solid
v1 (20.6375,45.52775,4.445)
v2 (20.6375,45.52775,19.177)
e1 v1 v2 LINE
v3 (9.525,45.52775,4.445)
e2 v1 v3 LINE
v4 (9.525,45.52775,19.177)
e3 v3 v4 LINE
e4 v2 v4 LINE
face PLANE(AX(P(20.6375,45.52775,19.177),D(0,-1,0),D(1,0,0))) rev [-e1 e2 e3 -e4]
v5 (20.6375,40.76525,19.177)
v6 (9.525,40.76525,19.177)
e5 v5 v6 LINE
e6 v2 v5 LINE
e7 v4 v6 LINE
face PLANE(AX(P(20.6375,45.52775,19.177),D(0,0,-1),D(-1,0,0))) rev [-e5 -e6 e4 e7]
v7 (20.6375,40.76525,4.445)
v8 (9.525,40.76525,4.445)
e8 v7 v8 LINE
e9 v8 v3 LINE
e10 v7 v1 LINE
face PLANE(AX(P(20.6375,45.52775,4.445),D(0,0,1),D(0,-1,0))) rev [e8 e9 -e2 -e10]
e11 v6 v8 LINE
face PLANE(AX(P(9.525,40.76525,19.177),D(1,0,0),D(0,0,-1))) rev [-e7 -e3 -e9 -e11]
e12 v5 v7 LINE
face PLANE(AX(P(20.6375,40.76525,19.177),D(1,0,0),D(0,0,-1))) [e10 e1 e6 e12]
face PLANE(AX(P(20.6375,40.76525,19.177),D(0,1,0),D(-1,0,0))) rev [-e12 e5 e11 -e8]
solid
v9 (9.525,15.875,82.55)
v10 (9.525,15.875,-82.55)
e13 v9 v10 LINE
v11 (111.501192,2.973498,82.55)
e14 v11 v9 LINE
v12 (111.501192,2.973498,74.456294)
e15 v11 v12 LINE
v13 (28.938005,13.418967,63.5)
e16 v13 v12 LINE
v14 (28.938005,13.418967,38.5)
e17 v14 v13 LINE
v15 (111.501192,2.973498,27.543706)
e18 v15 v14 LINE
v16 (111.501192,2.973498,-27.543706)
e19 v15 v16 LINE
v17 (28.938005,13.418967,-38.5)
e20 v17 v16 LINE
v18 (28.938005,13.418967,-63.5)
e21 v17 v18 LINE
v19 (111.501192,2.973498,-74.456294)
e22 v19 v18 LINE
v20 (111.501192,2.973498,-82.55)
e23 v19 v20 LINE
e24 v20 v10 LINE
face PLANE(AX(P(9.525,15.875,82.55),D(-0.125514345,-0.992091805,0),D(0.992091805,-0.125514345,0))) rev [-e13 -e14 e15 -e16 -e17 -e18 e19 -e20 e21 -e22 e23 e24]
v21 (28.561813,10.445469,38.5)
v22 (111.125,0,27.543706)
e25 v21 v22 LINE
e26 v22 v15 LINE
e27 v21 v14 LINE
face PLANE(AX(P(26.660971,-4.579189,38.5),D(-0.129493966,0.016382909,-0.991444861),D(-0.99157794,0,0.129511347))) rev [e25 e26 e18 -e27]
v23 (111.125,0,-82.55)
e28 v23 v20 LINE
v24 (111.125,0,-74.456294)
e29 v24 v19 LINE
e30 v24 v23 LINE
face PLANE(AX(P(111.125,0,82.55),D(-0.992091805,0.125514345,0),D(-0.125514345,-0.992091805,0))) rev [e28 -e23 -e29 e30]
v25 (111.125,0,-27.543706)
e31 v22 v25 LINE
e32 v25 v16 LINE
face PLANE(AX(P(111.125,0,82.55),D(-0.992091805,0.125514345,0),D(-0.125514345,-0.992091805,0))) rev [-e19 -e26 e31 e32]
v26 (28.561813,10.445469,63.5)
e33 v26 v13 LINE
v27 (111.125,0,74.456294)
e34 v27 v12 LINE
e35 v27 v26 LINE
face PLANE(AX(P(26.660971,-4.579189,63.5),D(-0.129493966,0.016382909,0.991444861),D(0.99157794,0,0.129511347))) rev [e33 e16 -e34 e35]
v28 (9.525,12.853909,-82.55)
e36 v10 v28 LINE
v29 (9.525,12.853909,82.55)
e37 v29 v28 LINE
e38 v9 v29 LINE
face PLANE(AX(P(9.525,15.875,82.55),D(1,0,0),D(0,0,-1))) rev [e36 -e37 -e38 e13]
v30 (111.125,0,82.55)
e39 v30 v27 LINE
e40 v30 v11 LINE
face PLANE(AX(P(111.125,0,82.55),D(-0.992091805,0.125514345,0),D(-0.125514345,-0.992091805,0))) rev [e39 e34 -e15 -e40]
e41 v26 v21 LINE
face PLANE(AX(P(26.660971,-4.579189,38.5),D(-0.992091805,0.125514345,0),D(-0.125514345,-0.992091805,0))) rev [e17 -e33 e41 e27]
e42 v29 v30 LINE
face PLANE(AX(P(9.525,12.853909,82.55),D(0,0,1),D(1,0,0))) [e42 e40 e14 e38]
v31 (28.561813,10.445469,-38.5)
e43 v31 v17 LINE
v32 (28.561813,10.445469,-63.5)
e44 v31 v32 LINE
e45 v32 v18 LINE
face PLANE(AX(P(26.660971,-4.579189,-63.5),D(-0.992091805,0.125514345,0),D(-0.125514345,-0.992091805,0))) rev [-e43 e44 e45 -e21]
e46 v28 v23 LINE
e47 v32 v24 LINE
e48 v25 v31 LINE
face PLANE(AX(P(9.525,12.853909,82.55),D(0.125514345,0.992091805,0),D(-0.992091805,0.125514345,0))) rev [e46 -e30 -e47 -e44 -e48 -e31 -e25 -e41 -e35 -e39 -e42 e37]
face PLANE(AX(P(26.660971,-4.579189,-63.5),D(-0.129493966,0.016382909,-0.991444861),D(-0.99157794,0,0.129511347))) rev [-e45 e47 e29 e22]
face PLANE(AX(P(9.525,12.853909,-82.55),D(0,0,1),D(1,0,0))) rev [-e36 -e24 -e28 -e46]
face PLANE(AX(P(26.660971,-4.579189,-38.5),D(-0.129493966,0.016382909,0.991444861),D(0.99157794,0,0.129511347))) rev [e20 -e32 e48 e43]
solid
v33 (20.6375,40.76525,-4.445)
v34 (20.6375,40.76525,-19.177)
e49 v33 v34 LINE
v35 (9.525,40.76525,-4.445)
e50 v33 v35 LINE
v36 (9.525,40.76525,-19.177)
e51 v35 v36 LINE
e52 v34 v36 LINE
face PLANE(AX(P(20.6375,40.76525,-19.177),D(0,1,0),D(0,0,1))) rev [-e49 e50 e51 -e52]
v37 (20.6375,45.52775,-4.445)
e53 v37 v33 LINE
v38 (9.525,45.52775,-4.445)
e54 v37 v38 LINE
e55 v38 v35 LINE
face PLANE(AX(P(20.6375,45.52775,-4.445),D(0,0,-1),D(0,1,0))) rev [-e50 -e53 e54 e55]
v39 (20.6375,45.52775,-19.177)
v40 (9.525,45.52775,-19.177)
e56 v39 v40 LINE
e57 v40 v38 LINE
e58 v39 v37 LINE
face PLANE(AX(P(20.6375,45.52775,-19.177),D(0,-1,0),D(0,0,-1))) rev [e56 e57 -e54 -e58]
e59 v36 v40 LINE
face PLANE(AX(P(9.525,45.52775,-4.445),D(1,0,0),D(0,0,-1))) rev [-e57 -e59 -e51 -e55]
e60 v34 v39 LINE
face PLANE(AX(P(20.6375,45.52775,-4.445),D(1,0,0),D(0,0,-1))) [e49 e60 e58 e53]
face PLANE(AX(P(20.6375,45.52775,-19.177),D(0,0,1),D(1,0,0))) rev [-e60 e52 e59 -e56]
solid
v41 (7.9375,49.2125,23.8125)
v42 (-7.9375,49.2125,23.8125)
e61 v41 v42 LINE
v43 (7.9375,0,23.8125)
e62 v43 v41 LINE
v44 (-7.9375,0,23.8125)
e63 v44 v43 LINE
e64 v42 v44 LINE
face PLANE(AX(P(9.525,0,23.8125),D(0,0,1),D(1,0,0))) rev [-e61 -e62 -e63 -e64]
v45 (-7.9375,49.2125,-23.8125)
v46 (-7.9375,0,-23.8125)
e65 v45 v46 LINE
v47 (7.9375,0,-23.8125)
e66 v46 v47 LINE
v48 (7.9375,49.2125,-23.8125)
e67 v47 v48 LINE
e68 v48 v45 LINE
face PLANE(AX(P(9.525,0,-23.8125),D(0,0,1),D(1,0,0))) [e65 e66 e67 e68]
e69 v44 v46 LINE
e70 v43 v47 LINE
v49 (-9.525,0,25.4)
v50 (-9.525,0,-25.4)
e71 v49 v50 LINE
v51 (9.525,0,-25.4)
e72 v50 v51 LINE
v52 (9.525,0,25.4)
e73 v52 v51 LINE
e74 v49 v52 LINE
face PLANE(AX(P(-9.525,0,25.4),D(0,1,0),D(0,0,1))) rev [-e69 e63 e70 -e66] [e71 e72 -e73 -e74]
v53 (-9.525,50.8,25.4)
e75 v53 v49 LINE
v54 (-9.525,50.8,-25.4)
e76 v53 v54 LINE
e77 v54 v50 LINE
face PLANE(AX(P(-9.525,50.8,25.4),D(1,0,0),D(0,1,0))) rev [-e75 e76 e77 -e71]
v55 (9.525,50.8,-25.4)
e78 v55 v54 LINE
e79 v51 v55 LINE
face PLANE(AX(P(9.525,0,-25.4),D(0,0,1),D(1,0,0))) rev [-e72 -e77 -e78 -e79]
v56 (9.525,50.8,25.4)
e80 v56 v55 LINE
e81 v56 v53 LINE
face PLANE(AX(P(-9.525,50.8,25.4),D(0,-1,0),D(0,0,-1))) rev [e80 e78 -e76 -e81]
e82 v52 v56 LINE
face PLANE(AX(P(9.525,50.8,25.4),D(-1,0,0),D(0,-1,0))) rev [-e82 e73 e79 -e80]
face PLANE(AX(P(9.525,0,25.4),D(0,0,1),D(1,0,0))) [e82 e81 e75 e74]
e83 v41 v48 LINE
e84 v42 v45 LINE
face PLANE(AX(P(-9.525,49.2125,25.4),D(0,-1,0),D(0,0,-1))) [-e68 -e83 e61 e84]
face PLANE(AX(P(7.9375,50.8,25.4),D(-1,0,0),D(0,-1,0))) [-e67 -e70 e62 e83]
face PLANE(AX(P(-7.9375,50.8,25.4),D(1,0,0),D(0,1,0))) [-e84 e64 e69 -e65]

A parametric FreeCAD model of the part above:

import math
import FreeCAD as App
import Part
import Sketcher

V = App.Vector
Q = App.Units.Quantity


def faces_at(feature, points):
    """Names of the faces that lie closest to the given points."""
    faces = feature.Shape.Faces
    near = lambda p: min(range(len(faces)), key=lambda i: faces[i].distToShape(Part.Vertex(*p))[0])
    return sorted({f"Face{near(p) + 1}" for p in points})


def add_polygon(sketch, points):
    """Adds a closed chain of lines whose ends are joined by coincident constraints."""
    first, n = sketch.GeometryCount, len(points)
    for a, b in zip(points, points[1:] + points[:1]):
        sketch.addGeometry(Part.LineSegment(App.Vector(*a, 0), App.Vector(*b, 0)), False)
    for i in range(n):
        sketch.addConstraint(Sketcher.Constraint("Coincident", first + i, 2, first + (i + 1) % n, 1))

doc = App.newDocument("Part")
body = doc.addObject("PartDesign::Body", "Body")

sketch1 = body.newObject("Sketcher::SketchObject", "Sketch")
sketch1.AttachmentSupport = (doc.getObject("XY_Plane"), [""])
sketch1.MapMode = "FlatFace"
add_polygon(sketch1, [(-10, 51), (-10, 0), (10, 0), (10, 51)])
sketch1.addConstraint(Sketcher.Constraint("Vertical", 0))
sketch1.addConstraint(Sketcher.Constraint("Horizontal", 1))
sketch1.addConstraint(Sketcher.Constraint("Vertical", 2))
sketch1.addConstraint(Sketcher.Constraint("Horizontal", 3))
sketch1.addConstraint(Sketcher.Constraint("Symmetric", 0, 2, 1, 2, -1, 1))
sketch1.addConstraint(Sketcher.Constraint("DistanceY", 0, 2, 0, 1, Q("2 in")))
sketch1.addConstraint(Sketcher.Constraint("DistanceX", 1, 1, 1, 2, Q("0.75 in")))
pad1 = body.newObject("PartDesign::Pad", "Pad")
pad1.Profile = sketch1
pad1.Length = Q("2 in")
pad1.Midplane = True
doc.recompute()

thickness = body.newObject("PartDesign::Thickness", "Thickness")
thickness.Base = (pad1, faces_at(pad1, [(0, 0, 0)]))
thickness.Value = Q("0.0625 in")
thickness.Reversed = True
thickness.Join = "Intersection"
body2 = doc.addObject("PartDesign::Body", "Body001")

sketch2 = body2.newObject("Sketcher::SketchObject", "Sketch001")
sketch2.AttachmentSupport = (doc.getObject("XY_Plane001"), [""])
sketch2.MapMode = "FlatFace"
add_polygon(sketch2, [(111.5, 3), (9.5, 15.9), (9.5, 12.9), (111.1, 0)])
sketch2.addConstraint(Sketcher.Constraint("Vertical", 1))
sketch2.addConstraint(Sketcher.Constraint("PointOnObject", 2, 2, -1))
sketch2.addConstraint(Sketcher.Constraint("Parallel", 0, 2))
sketch2.addConstraint(Sketcher.Constraint("Perpendicular", 2, 3))
sketch2.addConstraint(Sketcher.Constraint("DistanceX", 1, 2, 2, 2, Q("4 in")))
sketch2.addConstraint(Sketcher.Constraint("Distance", 3, Q("0.118 in")))
sketch2.addConstraint(Sketcher.Constraint("DistanceX", -1, 1, 0, 2, Q("0.375 in")))
sketch2.addConstraint(Sketcher.Constraint("DistanceY", -1, 1, 0, 2, Q("0.625 in")))
pad2 = body2.newObject("PartDesign::Pad", "Pad001")
pad2.Profile = sketch2
pad2.Length = Q("6.5 in")
pad2.Midplane = True

sketch3 = body2.newObject("Sketcher::SketchObject", "Sketch002")
sketch3.AttachmentSupport = (doc.getObject("XY_Plane001"), [""])
sketch3.MapMode = "FlatFace"
sketch3.AttachmentOffset = App.Placement(V(0, 0, 2.5 * 25.4), App.Rotation())
sketch3.addGeometry(Part.LineSegment(V(63, 9, 0), V(29, 13, 0)), False)
sketch3.addGeometry(Part.ArcOfCircle(Part.Circle(V(48, 23, 0), V(0, 0, 1), 21), math.radians(-153), math.radians(-42)), False)
sketch3.addConstraint(Sketcher.Constraint("Coincident", 0, 1, 1, 2))
sketch3.addConstraint(Sketcher.Constraint("Coincident", 1, 1, 0, 2))
sketch3.addConstraint(Sketcher.Constraint("Radius", 1, Q("21 mm")))
sketch3.addConstraint(Sketcher.Constraint("DistanceX", -1, 1, 1, 3, Q("1.875 in")))
sketch3.addConstraint(Sketcher.Constraint("DistanceY", -1, 1, 1, 3, Q("23 mm")))
sketch3.addConstraint(Sketcher.Constraint("DistanceY", 0, 1, 1, 1, Q("4.351999 mm")))
sketch3.addConstraint(Sketcher.Constraint("DistanceY", -1, 1, 0, 1, Q("9.066968 mm")))
pocket1 = body2.newObject("PartDesign::Pocket", "Pocket")
pocket1.Profile = sketch3
pocket1.Length = 25
doc.recompute()

mirrored = body2.newObject("PartDesign::Mirrored", "Mirrored")
mirrored.Originals = [pocket1]
mirrored.MirrorPlane = (doc.getObject("XY_Plane001"), [""])
body2.Tip = mirrored

sketch4 = body2.newObject("Sketcher::SketchObject", "Sketch003")
sketch4.Placement = App.Placement(V(2.126838, 16.810977, 0), App.Rotation(V(0.992091805, -0.125514345, 0), V(0, 0, -1), V(0.125514345, 0.992091805, 0), "ZXY"))
add_polygon(sketch4, [(27, 39), (110, 28), (110, 74), (27, 64)])
add_polygon(sketch4, [(27, -64), (110, -74), (110, -28), (27, -39)])
sketch4.addConstraint(Sketcher.Constraint("Vertical", 1))
sketch4.addConstraint(Sketcher.Constraint("Vertical", 3))
sketch4.addConstraint(Sketcher.Constraint("Vertical", 5))
sketch4.addConstraint(Sketcher.Constraint("Vertical", 7))
sketch4.addConstraint(Sketcher.Constraint("Symmetric", 1, 2, 4, 2, -1))
sketch4.addConstraint(Sketcher.Constraint("Symmetric", 3, 2, 6, 2, -1))
sketch4.addConstraint(Sketcher.Constraint("Parallel", 0, 4))
sketch4.addConstraint(Sketcher.Constraint("Parallel", 2, 6))
sketch4.addConstraint(Sketcher.Constraint("Equal", 1, 5))
sketch4.addConstraint(Sketcher.Constraint("DistanceY", -1, 1, 2, 2, Q("2.5 in")))
sketch4.addConstraint(Sketcher.Constraint("Angle", 0, Q("-7.5 deg")))
sketch4.addConstraint(Sketcher.Constraint("DistanceY", 3, 2, 3, 1, Q("25 mm")))
sketch4.addConstraint(Sketcher.Constraint("DistanceY", 1, 1, 1, 2, Q("46.912589 mm")))
sketch4.addConstraint(Sketcher.Constraint("DistanceX", -1, 1, 0, 2, Q("110.246202 mm")))
pocket2 = body2.newObject("PartDesign::Pocket", "Pocket001")
pocket2.Profile = sketch4
pocket2.Length = Q("0.118 in")
body3 = doc.addObject("PartDesign::Body", "Body002")

sketch5 = body3.newObject("Sketcher::SketchObject", "Sketch004")
sketch5.AttachmentSupport = (doc.getObject("YZ_Plane002"), [""])
sketch5.MapMode = "FlatFace"
sketch5.AttachmentOffset = App.Placement(V(0, 0, 0.375 * 25.4), App.Rotation())
add_polygon(sketch5, [(45.5, 19.2), (40.8, 19.2), (40.8, 4.4), (45.5, 4.4)])
sketch5.addConstraint(Sketcher.Constraint("Horizontal", 0))
sketch5.addConstraint(Sketcher.Constraint("Vertical", 1))
sketch5.addConstraint(Sketcher.Constraint("Horizontal", 2))
sketch5.addConstraint(Sketcher.Constraint("Vertical", 3))
sketch5.addConstraint(Sketcher.Constraint("DistanceY", 1, 2, 1, 1, Q("0.58 in")))
sketch5.addConstraint(Sketcher.Constraint("DistanceX", 0, 2, 0, 1, Q("0.1875 in")))
sketch5.addConstraint(Sketcher.Constraint("DistanceY", -1, 1, 0, 2, Q("0.755 in")))
sketch5.addConstraint(Sketcher.Constraint("DistanceX", -1, 1, 0, 2, Q("40.76525 mm")))
pad3 = body3.newObject("PartDesign::Pad", "Pad002")
pad3.Profile = sketch5
pad3.Length = Q("0.4375 in")
body4 = doc.addObject("PartDesign::Body", "Body003")

sketch6 = body4.newObject("Sketcher::SketchObject", "Sketch005")
sketch6.AttachmentSupport = (doc.getObject("YZ_Plane003"), [""])
sketch6.MapMode = "FlatFace"
sketch6.AttachmentOffset = App.Placement(V(0, 0, 0.375 * 25.4), App.Rotation())
add_polygon(sketch6, [(45.5, -4.4), (40.8, -4.4), (40.8, -19.2), (45.5, -19.2)])
sketch6.addConstraint(Sketcher.Constraint("Horizontal", 0))
sketch6.addConstraint(Sketcher.Constraint("Vertical", 1))
sketch6.addConstraint(Sketcher.Constraint("Horizontal", 2))
sketch6.addConstraint(Sketcher.Constraint("Vertical", 3))
sketch6.addConstraint(Sketcher.Constraint("DistanceY", 1, 2, 1, 1, Q("0.58 in")))
sketch6.addConstraint(Sketcher.Constraint("DistanceX", 0, 2, 0, 1, Q("0.1875 in")))
sketch6.addConstraint(Sketcher.Constraint("DistanceY", 0, 2, -1, 1, Q("0.175 in")))
sketch6.addConstraint(Sketcher.Constraint("DistanceX", -1, 1, 0, 2, Q("40.76525 mm")))
pad4 = body4.newObject("PartDesign::Pad", "Pad003")
pad4.Profile = sketch6
pad4.Length = Q("0.4375 in")

doc.recompute()
